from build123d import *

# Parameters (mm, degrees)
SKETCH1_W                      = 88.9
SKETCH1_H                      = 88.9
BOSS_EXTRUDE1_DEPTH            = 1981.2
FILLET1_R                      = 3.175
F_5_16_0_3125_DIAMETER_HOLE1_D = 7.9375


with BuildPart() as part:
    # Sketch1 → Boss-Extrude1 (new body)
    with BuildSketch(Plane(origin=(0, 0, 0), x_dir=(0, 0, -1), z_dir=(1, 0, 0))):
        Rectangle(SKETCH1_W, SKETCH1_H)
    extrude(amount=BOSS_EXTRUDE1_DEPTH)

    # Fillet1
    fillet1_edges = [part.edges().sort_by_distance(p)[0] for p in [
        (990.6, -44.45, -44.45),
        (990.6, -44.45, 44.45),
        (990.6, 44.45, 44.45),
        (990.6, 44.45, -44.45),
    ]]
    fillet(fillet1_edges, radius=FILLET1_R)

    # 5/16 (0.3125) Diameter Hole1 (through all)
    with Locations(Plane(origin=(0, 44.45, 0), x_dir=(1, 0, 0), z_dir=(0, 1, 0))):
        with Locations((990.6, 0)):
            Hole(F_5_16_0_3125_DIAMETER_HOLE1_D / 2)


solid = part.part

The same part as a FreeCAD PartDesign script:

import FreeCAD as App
import Part
import Sketcher
Q = App.Units.Quantity


def edges_at(feature, points):
    """Names of the edges that pass closest to the given points."""
    edges = feature.Shape.Edges
    near = lambda p: min(range(len(edges)), key=lambda i: edges[i].distToShape(Part.Vertex(*p))[0])
    return sorted({f"Edge{near(p) + 1}" for p in points})

doc = App.newDocument("Part")
body = doc.addObject("PartDesign::Body", "Body")

# Sketch on YZ plane
sketch1 = doc.addObject("Sketcher::SketchObject", "Sketch")
body.addObject(sketch1)
sketch1.AttachmentSupport = (doc.YZ_Plane, [""])
sketch1.MapMode = "FlatFace"
sketch1.addGeometry([
    Part.LineSegment(App.Vector(44, 44, 0), App.Vector(-44, 44, 0)),
    Part.LineSegment(App.Vector(-44, 44, 0), App.Vector(-44, -44, 0)),
    Part.LineSegment(App.Vector(-44, -44, 0), App.Vector(44, -44, 0)),
    Part.LineSegment(App.Vector(44, -44, 0), App.Vector(44, 44, 0)),
], False)
sketch1.addConstraint([
    Sketcher.Constraint("Coincident", 0, 2, 1, 1),
    Sketcher.Constraint("Coincident", 1, 2, 2, 1),
    Sketcher.Constraint("Coincident", 2, 2, 3, 1),
    Sketcher.Constraint("Coincident", 3, 2, 0, 1),
    Sketcher.Constraint("Horizontal", 0),
    Sketcher.Constraint("Vertical", 1),
    Sketcher.Constraint("Horizontal", 2),
    Sketcher.Constraint("Vertical", 3),
    Sketcher.Constraint("Symmetric", 0, 2, 2, 2, -1, 1),
    Sketcher.Constraint("Equal", 2, 1),
    Sketcher.Constraint("DistanceX", 0, 2, 0, 1, Q("3.5 in")),
])
pad1 = doc.addObject("PartDesign::Pad", "Pad")
body.addObject(pad1)
pad1.Profile = sketch1
pad1.Length = Q("78 in")
doc.recompute()

fillet = doc.addObject("PartDesign::Fillet", "Fillet")
body.addObject(fillet)
fillet.Base = (pad1, edges_at(pad1, [
    (990.6, -44.45, -44.45),
    (990.6, -44.45, 44.45),
    (990.6, 44.45, 44.45),
    (990.6, 44.45, -44.45),
]))
fillet.Radius = Q("0.125 in")

# Sketch on XZ plane
sketch2 = doc.addObject("Sketcher::SketchObject", "Sketch001")
body.addObject(sketch2)
sketch2.AttachmentSupport = (doc.XZ_Plane, [""])
sketch2.MapMode = "FlatFace"
sketch2.AttachmentOffset = App.Placement(App.Vector(0, 0, -1.75 * 25.4), App.Rotation())
sketch2.addGeometry(Part.Circle(App.Vector(990.6, 0, 0), App.Vector(0, 0, 1), 4), False)
sketch2.addConstraint([
    Sketcher.Constraint("PointOnObject", 0, 3, -1),
    Sketcher.Constraint("Diameter", 0, Q("0.3125 in")),
    Sketcher.Constraint("DistanceX", -1, 1, 0, 3, Q("39 in")),
])
doc.recompute()
hole = doc.addObject("PartDesign::Hole", "Hole")
body.addObject(hole)
hole.Profile = sketch2
hole.ThreadType = "None"
hole.Diameter = Q("0.3125 in")
hole.DepthType = "ThroughAll"
hole.Reversed = True

doc.recompute()
